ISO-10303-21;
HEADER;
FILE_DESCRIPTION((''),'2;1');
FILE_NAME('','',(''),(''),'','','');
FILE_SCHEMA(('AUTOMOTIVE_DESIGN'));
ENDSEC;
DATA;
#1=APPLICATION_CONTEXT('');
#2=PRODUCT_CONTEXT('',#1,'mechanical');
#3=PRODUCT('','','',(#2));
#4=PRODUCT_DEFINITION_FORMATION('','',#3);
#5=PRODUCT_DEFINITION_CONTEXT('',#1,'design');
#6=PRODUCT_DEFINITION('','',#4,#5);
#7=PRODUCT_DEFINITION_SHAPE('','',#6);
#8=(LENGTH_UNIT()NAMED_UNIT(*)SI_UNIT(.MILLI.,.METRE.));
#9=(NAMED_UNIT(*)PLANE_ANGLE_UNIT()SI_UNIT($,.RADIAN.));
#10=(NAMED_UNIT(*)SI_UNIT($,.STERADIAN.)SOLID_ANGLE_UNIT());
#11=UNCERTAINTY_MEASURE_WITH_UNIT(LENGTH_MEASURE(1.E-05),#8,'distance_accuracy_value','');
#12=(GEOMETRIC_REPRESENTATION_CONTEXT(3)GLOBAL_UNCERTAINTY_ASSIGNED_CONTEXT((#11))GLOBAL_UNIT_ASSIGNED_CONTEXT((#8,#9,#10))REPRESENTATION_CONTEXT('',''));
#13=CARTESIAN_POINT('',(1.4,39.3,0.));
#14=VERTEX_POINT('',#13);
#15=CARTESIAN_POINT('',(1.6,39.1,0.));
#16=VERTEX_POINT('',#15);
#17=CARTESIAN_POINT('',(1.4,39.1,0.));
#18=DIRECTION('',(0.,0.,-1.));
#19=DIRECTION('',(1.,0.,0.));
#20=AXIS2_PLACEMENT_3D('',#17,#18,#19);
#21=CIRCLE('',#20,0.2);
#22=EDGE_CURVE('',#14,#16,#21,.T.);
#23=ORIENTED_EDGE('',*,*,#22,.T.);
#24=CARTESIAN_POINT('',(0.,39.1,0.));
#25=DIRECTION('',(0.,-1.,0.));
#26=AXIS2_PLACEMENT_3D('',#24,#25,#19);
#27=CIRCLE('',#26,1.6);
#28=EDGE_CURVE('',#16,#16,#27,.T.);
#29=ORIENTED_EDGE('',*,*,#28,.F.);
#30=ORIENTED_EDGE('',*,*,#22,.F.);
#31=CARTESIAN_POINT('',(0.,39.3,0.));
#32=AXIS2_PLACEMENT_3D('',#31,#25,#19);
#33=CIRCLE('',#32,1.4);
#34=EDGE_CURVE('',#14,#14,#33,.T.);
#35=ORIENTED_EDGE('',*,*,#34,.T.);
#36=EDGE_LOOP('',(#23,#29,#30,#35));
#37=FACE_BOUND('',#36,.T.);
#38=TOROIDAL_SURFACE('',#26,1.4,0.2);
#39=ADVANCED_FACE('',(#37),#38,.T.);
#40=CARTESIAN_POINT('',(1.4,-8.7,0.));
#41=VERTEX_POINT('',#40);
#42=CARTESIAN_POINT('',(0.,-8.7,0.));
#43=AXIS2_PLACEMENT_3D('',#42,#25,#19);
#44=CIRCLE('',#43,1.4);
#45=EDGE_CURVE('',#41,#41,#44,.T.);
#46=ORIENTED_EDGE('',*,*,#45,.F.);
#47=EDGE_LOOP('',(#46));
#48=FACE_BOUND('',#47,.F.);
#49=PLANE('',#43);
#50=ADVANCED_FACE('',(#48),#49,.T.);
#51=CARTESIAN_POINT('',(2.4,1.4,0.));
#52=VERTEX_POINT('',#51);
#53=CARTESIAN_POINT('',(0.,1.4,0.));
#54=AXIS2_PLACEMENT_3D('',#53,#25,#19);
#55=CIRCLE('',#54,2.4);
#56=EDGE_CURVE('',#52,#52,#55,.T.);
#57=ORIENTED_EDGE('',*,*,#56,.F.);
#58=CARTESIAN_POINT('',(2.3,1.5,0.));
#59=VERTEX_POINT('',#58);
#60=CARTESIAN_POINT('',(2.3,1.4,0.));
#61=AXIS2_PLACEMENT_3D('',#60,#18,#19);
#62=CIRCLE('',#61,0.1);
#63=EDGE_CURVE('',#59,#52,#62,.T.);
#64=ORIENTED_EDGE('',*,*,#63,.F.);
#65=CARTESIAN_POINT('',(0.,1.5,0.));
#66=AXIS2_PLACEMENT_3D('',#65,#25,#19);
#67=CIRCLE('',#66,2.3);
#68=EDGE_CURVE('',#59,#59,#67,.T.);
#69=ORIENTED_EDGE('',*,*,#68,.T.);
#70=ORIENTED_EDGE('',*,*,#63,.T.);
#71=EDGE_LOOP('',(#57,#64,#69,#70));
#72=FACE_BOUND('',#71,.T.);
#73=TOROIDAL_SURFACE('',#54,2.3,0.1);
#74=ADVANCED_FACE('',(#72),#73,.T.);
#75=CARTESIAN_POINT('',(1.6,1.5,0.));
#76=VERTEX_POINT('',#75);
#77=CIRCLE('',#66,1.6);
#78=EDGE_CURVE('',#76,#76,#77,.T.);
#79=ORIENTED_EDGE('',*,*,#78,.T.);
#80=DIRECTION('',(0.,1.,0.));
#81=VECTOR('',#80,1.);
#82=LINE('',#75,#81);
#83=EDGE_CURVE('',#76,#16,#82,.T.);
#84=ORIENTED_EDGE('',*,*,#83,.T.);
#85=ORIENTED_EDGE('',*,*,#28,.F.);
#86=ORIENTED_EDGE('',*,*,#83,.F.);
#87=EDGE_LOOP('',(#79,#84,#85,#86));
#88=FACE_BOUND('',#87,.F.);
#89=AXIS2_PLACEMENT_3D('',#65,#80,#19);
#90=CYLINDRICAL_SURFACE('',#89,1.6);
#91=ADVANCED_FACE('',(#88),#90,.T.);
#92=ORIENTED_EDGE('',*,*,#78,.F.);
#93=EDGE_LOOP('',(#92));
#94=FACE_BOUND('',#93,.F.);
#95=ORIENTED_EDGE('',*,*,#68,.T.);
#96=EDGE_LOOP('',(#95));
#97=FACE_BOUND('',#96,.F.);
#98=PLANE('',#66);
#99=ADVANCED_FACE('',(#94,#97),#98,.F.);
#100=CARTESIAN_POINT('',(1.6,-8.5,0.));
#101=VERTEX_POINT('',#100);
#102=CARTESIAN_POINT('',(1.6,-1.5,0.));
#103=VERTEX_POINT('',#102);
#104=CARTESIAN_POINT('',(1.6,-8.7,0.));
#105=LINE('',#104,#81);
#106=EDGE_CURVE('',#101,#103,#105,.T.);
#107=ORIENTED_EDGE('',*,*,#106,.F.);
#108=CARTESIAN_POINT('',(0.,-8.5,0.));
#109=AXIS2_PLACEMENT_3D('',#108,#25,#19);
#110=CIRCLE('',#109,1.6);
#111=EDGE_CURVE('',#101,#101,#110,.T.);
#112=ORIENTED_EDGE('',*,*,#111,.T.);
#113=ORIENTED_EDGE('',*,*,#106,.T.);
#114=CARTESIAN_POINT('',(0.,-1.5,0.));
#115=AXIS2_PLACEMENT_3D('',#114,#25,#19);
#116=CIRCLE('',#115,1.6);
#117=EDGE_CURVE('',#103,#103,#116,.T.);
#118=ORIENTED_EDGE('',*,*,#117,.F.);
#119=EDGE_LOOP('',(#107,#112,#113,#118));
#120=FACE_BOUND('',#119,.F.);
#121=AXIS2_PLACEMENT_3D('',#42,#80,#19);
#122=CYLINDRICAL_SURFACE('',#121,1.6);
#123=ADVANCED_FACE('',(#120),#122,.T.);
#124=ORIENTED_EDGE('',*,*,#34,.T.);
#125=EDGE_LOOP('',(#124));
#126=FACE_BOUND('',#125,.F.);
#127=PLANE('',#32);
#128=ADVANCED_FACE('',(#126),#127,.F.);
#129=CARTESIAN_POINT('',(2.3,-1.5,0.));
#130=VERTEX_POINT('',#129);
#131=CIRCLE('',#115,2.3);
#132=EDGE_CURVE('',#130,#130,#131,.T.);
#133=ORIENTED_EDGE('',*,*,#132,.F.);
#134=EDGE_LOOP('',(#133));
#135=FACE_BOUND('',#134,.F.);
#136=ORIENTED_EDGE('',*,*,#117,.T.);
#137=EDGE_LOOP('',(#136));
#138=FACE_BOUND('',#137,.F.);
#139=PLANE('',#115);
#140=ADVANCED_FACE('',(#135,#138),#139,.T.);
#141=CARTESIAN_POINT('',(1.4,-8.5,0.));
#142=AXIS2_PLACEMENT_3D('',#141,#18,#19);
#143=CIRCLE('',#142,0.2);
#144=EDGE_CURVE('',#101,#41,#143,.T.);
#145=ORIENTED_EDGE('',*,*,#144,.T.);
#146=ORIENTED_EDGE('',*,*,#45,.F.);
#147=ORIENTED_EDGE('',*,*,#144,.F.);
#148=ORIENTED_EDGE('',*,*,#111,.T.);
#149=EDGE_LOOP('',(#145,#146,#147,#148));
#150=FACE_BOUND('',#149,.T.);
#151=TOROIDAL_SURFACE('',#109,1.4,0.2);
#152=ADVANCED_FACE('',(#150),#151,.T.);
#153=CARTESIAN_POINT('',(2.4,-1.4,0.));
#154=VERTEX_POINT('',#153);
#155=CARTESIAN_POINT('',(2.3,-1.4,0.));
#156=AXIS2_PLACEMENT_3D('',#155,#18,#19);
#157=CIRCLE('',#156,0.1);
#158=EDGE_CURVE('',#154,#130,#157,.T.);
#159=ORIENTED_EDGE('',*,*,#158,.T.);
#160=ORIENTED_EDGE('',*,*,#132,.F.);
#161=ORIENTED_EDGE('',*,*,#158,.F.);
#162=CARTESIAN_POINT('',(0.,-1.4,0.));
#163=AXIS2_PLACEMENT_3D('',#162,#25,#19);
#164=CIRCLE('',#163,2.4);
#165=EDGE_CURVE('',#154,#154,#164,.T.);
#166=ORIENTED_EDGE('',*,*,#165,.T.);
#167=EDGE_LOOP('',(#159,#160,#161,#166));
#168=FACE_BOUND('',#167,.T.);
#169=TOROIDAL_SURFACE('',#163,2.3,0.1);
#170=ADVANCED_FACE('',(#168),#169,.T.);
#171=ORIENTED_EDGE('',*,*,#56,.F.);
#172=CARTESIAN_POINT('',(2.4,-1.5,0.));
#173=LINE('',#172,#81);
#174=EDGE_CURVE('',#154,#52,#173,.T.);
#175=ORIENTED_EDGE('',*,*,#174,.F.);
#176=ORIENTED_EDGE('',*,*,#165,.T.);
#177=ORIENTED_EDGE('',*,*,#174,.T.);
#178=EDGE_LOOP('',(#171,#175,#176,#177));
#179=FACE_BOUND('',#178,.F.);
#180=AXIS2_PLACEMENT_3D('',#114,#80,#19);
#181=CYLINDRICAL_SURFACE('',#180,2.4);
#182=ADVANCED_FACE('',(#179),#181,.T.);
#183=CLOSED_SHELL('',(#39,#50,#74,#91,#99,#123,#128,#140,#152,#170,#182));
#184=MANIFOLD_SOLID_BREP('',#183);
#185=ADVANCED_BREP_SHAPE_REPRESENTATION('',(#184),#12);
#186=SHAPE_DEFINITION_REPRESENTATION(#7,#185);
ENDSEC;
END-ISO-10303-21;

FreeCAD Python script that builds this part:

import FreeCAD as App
import Part
import Sketcher

V = App.Vector
Q = App.Units.Quantity


def edges_at(feature, points):
    """Names of the edges that pass closest to the given points."""
    edges = feature.Shape.Edges
    near = lambda p: min(range(len(edges)), key=lambda i: edges[i].distToShape(Part.Vertex(*p))[0])
    return sorted({f"Edge{near(p) + 1}" for p in points})

doc = App.newDocument("Part")
body = doc.addObject("PartDesign::Body", "Body")

# Sketch on XY plane
sketch1 = body.newObject("Sketcher::SketchObject", "Sketch")
sketch1.AttachmentSupport = (doc.getObject("XY_Plane"), [""])
sketch1.MapMode = "FlatFace"
sketch1.addGeometry([
    Part.LineSegment(V(0, 39.3, 0), V(0, -8.7, 0)),  # 0
    Part.LineSegment(V(0, -8.7, 0), V(1.6, -8.7, 0)),  # 1
    Part.LineSegment(V(1.6, -8.7, 0), V(1.6, -1.5, 0)),  # 2
    Part.LineSegment(V(1.6, -1.5, 0), V(2.4, -1.5, 0)),  # 3
    Part.LineSegment(V(2.4, -1.5, 0), V(2.4, 1.5, 0)),  # 4
    Part.LineSegment(V(2.4, 1.5, 0), V(1.6, 1.5, 0)),  # 5
    Part.LineSegment(V(1.6, 1.5, 0), V(1.6, 39.3, 0)),  # 6
    Part.LineSegment(V(1.6, 39.3, 0), V(0, 39.3, 0)),  # 7
], False)
sketch1.addConstraint([
    Sketcher.Constraint("Coincident", 0, 2, 1, 1),
    Sketcher.Constraint("Coincident", 1, 2, 2, 1),
    Sketcher.Constraint("Coincident", 2, 2, 3, 1),
    Sketcher.Constraint("Coincident", 3, 2, 4, 1),
    Sketcher.Constraint("Coincident", 4, 2, 5, 1),
    Sketcher.Constraint("Coincident", 5, 2, 6, 1),
    Sketcher.Constraint("Coincident", 6, 2, 7, 1),
    Sketcher.Constraint("Coincident", 7, 2, 0, 1),
    Sketcher.Constraint("Vertical", 0),
    Sketcher.Constraint("Horizontal", 1),
    Sketcher.Constraint("Vertical", 2),
    Sketcher.Constraint("Horizontal", 3),
    Sketcher.Constraint("Vertical", 4),
    Sketcher.Constraint("Horizontal", 5),
    Sketcher.Constraint("Vertical", 6),
    Sketcher.Constraint("Horizontal", 7),
    Sketcher.Constraint("Symmetric", 2, 2, 5, 2, -1),
    Sketcher.Constraint("PointOnObject", 0, 2, -2),
    Sketcher.Constraint("DistanceY", 0, 2, 0, 1, Q("48 mm")),
    Sketcher.Constraint("DistanceY", 4, 1, 4, 2, Q("3 mm")),
    Sketcher.Constraint("DistanceY", 2, 1, 2, 2, Q("7.2 mm")),
    Sketcher.Constraint("DistanceX", 1, 1, 1, 2, Q("1.6 mm")),
    Sketcher.Constraint("DistanceX", 3, 1, 3, 2, Q("0.8 mm")),
])
revolution = body.newObject("PartDesign::Revolution", "Revolution")
revolution.Profile = sketch1
revolution.ReferenceAxis = (sketch1, ["V_Axis"])
revolution.Angle = 360
doc.recompute()

fillet = body.newObject("PartDesign::Fillet", "Fillet")
fillet.Base = (revolution, edges_at(revolution, [(-2.4, 1.5, 0), (-2.4, -1.5, 0)]))
fillet.Radius = 0.1
doc.recompute()

fillet2 = body.newObject("PartDesign::Fillet", "Fillet001")
fillet2.Base = (fillet, edges_at(fillet, [(-1.6, 39.3, 0), (-1.6, -8.7, 0)]))
fillet2.Radius = 0.2

doc.recompute()
